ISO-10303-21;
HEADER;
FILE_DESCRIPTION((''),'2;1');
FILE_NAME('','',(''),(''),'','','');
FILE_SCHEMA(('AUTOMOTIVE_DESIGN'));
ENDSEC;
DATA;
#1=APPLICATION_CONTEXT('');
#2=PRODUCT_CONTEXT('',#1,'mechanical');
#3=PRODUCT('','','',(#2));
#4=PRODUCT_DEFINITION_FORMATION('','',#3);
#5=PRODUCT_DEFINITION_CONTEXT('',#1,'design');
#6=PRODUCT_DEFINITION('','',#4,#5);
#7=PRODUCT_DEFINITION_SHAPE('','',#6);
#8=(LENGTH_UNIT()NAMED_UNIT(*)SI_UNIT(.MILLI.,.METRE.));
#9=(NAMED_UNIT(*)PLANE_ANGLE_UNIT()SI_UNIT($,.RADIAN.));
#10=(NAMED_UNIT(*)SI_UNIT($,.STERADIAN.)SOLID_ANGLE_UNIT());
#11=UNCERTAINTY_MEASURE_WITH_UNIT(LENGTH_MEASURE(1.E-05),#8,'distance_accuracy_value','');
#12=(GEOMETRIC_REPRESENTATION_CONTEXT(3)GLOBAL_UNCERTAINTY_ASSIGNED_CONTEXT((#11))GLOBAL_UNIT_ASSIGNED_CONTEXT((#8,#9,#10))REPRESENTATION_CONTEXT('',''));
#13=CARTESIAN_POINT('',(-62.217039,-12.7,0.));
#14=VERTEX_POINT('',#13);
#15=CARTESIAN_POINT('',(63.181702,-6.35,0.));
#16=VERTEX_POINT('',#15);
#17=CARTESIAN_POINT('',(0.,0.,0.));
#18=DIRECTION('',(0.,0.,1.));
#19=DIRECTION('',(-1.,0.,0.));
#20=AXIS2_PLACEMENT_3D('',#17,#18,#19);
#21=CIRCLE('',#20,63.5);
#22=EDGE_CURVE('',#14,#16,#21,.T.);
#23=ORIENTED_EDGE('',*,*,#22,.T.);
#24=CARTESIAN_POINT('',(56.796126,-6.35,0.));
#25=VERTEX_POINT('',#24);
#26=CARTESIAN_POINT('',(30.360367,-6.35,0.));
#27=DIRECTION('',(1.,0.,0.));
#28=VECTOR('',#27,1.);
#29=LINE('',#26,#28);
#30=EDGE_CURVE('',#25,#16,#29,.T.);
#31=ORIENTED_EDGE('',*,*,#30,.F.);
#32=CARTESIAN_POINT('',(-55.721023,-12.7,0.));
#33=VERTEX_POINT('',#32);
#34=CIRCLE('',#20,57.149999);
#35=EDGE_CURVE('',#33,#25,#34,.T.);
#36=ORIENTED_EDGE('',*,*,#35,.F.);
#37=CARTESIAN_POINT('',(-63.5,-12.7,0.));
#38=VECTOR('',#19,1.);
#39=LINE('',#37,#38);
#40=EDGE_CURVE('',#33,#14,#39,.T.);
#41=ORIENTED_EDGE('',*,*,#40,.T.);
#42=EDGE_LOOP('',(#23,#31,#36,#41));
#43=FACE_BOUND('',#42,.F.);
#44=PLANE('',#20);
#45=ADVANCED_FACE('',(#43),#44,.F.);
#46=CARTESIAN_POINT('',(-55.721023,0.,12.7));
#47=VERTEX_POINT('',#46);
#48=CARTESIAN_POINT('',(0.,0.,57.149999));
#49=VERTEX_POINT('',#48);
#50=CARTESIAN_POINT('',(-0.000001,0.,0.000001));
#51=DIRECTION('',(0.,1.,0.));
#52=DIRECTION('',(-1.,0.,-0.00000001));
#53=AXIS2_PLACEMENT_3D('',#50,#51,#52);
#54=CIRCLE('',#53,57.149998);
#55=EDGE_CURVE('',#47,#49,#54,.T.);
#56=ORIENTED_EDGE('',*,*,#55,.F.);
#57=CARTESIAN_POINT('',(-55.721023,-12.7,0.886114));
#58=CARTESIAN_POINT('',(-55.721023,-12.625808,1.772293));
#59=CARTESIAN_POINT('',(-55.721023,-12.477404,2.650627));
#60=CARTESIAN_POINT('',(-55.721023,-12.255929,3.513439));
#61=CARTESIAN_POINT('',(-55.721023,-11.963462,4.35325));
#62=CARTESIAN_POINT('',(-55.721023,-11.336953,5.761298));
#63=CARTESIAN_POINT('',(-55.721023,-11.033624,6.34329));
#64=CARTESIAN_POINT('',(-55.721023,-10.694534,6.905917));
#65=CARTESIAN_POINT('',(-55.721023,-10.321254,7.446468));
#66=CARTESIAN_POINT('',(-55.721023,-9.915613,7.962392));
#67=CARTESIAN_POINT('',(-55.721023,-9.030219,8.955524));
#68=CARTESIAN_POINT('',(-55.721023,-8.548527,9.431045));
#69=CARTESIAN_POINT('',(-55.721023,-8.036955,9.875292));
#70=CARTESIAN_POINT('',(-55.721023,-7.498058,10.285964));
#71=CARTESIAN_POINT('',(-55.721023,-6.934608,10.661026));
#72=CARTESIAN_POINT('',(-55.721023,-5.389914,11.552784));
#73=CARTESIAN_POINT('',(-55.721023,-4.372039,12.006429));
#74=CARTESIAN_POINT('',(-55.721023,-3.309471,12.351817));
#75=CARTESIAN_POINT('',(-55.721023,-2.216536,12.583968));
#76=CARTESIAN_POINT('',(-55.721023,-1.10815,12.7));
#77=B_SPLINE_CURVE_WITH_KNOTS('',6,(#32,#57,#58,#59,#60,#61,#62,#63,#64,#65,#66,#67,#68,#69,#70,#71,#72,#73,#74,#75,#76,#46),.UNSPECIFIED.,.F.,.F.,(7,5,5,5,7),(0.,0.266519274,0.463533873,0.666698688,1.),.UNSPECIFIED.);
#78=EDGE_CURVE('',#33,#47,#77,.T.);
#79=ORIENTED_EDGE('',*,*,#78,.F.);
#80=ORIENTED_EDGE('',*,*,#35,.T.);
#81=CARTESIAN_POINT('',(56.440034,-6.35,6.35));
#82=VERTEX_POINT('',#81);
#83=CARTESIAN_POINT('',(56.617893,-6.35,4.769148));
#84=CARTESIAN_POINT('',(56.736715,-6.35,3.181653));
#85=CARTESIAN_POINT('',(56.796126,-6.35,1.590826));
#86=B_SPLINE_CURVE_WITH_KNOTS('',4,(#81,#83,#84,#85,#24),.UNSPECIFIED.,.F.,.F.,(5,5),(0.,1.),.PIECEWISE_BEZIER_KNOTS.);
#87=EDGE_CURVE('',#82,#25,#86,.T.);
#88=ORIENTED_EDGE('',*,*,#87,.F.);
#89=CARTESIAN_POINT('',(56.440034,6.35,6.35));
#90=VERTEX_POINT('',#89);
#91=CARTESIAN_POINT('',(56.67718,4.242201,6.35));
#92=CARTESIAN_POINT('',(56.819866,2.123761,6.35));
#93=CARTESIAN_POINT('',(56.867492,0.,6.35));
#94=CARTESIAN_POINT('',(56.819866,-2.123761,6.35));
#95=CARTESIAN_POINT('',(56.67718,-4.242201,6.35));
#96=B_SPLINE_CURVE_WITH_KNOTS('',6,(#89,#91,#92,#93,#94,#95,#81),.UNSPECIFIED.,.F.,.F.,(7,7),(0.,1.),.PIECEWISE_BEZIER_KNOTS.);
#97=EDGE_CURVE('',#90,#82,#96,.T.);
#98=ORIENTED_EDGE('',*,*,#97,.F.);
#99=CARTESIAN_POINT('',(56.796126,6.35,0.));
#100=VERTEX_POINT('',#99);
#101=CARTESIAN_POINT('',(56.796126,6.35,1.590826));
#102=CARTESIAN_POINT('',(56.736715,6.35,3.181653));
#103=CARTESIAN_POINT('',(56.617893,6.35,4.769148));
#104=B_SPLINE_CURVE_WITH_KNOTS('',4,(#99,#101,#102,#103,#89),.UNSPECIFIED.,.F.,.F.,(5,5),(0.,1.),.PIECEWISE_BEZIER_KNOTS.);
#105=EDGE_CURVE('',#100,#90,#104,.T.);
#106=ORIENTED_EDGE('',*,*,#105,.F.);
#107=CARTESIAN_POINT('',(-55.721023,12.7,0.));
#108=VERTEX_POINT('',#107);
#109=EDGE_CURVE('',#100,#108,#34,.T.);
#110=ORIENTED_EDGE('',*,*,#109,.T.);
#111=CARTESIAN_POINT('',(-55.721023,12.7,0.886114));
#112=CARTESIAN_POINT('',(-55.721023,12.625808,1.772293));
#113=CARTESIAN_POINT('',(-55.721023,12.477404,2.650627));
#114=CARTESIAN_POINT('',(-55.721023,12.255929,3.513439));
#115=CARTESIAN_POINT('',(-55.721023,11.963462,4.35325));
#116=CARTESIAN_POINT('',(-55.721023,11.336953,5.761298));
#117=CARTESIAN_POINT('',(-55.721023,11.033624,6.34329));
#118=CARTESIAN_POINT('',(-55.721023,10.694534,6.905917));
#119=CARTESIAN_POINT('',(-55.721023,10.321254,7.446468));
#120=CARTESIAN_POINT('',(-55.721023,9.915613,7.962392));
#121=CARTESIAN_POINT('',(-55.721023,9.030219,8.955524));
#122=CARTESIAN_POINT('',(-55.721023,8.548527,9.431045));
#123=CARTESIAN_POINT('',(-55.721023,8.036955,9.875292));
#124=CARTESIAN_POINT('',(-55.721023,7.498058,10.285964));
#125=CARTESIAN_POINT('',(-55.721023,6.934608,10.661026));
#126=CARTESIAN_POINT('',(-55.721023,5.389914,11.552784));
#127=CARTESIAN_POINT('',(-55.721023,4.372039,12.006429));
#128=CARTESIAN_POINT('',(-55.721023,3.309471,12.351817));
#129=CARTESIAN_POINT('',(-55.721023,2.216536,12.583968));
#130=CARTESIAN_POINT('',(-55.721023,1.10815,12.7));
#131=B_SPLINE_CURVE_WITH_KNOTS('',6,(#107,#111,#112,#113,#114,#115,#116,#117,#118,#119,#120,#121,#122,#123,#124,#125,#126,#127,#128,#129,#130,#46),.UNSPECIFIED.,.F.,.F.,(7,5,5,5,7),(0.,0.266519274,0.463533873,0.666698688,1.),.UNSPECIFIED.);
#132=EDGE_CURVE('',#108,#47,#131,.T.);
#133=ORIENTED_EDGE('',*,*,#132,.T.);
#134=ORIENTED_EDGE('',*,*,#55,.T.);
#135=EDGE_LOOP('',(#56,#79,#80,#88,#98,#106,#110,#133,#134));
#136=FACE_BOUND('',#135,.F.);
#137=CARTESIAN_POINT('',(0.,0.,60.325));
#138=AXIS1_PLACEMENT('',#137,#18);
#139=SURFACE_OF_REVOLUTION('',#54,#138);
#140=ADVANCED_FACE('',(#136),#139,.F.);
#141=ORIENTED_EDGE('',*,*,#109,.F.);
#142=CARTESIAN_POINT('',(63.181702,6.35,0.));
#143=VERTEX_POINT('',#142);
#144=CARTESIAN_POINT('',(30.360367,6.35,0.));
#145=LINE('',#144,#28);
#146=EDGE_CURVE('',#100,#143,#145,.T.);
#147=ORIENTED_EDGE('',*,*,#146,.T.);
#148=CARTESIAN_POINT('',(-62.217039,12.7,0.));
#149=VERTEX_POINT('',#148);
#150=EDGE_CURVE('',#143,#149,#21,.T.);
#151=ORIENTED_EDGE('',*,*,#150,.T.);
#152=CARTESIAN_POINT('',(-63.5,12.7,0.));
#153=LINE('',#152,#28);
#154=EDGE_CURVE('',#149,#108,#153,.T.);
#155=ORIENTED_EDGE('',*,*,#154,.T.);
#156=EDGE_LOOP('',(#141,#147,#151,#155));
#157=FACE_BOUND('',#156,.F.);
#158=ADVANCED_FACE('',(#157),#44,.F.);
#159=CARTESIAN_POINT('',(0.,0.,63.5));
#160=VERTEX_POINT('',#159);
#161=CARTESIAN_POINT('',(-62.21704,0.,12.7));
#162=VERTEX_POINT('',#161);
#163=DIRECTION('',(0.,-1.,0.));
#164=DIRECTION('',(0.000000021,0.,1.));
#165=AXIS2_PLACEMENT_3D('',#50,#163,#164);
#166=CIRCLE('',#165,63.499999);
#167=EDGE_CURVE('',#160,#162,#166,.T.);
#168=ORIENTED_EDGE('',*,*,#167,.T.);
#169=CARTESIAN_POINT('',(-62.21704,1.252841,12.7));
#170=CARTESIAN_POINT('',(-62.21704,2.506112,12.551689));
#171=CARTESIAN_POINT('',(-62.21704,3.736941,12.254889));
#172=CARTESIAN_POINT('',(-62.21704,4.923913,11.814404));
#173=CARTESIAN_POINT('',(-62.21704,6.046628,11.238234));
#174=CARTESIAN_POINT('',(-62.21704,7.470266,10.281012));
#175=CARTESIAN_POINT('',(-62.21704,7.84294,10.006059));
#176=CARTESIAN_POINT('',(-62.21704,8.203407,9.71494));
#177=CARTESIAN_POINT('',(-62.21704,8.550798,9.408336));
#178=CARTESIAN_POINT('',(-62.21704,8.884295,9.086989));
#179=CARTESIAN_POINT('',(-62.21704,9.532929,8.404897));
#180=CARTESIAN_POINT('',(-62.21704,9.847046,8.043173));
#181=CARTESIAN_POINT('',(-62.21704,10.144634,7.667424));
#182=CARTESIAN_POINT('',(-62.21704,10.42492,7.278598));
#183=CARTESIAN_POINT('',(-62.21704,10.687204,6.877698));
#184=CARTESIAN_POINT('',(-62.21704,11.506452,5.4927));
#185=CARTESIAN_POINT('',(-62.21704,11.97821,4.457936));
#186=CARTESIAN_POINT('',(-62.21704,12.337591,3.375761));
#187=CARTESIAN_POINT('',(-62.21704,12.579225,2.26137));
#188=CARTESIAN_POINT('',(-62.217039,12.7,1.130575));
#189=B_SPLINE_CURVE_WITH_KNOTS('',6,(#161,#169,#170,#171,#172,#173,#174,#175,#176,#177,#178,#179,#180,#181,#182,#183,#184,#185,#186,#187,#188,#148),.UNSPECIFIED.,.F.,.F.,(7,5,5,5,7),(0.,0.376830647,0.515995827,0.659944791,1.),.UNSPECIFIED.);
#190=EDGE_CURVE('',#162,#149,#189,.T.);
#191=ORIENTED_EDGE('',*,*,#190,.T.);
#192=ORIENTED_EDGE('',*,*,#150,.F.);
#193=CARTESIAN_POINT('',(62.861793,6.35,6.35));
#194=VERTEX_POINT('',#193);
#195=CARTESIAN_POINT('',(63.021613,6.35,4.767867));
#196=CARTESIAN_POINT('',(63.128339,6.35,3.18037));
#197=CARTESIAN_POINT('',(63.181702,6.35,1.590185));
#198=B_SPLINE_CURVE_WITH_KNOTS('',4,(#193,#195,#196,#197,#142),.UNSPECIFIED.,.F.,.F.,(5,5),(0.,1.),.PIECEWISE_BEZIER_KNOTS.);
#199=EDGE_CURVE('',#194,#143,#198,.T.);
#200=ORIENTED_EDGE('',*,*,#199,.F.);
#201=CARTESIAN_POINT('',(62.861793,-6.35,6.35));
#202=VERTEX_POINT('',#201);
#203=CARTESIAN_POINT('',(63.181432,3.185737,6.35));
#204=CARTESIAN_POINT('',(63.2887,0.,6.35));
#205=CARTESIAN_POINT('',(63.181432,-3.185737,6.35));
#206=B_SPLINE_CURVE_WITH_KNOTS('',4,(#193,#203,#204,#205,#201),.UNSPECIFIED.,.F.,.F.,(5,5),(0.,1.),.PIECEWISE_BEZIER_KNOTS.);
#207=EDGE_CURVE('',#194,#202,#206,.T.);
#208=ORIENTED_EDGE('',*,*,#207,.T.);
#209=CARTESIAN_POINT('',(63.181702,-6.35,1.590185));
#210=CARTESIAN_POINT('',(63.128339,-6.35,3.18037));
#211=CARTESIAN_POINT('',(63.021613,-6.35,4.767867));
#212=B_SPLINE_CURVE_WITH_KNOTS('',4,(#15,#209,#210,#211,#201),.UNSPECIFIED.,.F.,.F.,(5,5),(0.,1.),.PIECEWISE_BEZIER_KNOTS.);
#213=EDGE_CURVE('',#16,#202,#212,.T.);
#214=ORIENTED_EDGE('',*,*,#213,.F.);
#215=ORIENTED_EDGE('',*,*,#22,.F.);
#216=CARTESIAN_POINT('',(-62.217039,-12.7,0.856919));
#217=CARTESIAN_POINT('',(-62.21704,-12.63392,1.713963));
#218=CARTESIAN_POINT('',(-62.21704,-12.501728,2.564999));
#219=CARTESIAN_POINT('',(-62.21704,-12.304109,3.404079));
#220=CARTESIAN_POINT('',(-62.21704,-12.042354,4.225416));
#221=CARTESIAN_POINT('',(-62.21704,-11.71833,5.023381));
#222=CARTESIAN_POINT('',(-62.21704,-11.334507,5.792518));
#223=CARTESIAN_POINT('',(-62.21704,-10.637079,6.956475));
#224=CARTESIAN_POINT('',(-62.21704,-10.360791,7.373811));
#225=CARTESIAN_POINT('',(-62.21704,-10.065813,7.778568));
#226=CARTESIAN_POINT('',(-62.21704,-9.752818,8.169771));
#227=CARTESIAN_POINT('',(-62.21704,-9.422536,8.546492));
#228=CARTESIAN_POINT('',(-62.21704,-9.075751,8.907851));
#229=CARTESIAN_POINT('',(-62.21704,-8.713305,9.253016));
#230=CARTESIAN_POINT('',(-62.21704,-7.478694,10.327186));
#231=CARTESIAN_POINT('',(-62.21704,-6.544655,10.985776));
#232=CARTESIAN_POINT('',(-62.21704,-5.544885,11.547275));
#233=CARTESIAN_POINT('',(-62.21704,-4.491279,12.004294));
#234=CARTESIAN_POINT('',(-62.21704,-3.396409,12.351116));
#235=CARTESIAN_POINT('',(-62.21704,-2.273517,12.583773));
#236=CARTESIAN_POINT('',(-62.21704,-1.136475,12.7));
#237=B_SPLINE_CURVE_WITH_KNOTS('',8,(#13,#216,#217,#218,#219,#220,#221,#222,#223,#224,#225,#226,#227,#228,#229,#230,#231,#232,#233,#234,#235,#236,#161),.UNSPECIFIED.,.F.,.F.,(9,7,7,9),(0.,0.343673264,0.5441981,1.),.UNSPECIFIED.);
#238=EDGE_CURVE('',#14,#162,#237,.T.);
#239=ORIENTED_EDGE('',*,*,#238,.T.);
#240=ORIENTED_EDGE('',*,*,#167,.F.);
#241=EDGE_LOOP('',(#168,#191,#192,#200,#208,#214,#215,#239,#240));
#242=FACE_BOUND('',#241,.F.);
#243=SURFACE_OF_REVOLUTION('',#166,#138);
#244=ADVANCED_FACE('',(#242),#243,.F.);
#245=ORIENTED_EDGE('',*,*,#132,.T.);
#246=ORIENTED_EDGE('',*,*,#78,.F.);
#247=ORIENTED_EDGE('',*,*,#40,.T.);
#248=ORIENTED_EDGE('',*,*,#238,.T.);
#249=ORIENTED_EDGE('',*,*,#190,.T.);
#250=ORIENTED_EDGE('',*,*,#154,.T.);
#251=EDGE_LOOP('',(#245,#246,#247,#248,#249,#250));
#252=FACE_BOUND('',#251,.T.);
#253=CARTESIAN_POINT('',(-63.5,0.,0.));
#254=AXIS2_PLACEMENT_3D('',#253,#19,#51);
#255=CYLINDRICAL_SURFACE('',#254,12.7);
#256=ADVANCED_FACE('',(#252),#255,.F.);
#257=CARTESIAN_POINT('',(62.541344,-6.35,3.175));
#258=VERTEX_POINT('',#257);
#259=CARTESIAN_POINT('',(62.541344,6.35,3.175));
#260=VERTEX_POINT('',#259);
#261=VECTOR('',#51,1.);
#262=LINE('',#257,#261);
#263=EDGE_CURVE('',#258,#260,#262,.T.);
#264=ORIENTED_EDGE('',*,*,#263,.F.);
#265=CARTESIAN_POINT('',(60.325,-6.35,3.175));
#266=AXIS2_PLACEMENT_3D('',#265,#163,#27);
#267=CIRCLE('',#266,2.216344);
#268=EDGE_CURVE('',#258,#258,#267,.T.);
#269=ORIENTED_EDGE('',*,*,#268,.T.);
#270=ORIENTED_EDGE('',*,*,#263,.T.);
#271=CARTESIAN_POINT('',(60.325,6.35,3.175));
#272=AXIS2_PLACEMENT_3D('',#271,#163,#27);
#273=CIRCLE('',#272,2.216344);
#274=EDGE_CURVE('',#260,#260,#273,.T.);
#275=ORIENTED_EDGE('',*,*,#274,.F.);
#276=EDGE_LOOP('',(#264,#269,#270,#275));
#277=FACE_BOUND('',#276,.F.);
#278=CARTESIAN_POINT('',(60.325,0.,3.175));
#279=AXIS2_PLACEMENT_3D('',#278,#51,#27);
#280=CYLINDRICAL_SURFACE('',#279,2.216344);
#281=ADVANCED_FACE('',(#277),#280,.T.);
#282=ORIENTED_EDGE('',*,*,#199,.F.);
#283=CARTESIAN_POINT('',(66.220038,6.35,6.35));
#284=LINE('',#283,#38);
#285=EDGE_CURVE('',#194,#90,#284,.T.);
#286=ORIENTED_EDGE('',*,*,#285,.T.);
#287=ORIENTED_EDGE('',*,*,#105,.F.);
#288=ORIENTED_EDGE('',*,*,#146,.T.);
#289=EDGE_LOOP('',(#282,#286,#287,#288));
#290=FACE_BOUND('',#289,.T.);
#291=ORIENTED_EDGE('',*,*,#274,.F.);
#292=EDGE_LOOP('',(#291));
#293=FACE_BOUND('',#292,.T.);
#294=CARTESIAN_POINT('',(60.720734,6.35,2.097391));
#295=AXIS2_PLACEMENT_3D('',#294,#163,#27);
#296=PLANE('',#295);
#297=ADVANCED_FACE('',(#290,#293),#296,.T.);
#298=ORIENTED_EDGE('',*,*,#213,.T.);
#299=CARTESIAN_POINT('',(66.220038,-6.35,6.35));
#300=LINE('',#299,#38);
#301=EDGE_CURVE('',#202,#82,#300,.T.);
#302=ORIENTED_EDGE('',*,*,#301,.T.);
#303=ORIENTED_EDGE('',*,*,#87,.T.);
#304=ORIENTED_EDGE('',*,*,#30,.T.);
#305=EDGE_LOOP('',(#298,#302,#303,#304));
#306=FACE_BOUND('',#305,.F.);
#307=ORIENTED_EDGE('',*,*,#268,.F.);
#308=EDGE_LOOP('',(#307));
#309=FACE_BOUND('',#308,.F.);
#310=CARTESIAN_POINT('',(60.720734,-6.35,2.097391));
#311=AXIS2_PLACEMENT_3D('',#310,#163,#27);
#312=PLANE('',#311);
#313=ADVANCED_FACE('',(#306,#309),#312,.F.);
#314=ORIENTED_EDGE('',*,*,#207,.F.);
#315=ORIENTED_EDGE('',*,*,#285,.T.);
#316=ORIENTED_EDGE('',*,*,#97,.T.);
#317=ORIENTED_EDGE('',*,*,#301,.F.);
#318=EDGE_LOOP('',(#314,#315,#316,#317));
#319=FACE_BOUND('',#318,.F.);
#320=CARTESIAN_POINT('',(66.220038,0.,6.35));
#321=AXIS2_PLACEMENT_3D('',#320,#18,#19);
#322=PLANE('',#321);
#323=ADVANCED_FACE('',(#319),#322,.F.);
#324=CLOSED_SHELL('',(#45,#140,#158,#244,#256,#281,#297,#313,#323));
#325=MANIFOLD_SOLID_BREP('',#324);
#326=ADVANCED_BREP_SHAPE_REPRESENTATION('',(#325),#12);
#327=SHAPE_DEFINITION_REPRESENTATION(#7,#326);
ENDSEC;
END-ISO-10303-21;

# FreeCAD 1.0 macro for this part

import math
import FreeCAD as App
import Part
import Sketcher
Q = App.Units.Quantity

doc = App.newDocument("Part")
body = doc.addObject("PartDesign::Body", "Body")

# Sketch on XZ plane
sketch1 = doc.addObject("Sketcher::SketchObject", "Sketch")
body.addObject(sketch1)
sketch1.AttachmentSupport = (doc.XZ_Plane, [""])
sketch1.MapMode = "FlatFace"
sketch1.addGeometry(Part.LineSegment(App.Vector(0, 57, 0), App.Vector(0, 64, 0)), False)
sketch1.addGeometry(Part.ArcOfCircle(Part.Circle(App.Vector(0, 0, 0), App.Vector(0, 0, 1), 63), math.radians(90), math.radians(180)), False)
sketch1.addGeometry(Part.LineSegment(App.Vector(-64, 0, 0), App.Vector(-57, 0, 0)), False)
sketch1.addGeometry(Part.ArcOfCircle(Part.Circle(App.Vector(0, 0, 0), App.Vector(0, 0, 1), 57), math.radians(90), math.radians(180)), False)
sketch1.addConstraint(Sketcher.Constraint("Coincident", 0, 2, 1, 1))
sketch1.addConstraint(Sketcher.Constraint("Coincident", 1, 2, 2, 1))
sketch1.addConstraint(Sketcher.Constraint("Coincident", 2, 2, 3, 2))
sketch1.addConstraint(Sketcher.Constraint("Coincident", 3, 1, 0, 1))
sketch1.addConstraint(Sketcher.Constraint("Vertical", 0))
sketch1.addConstraint(Sketcher.Constraint("Horizontal", 2))
sketch1.addConstraint(Sketcher.Constraint("Coincident", 1, 3, -1, 1))
sketch1.addConstraint(Sketcher.Constraint("Coincident", 3, 3, -1, 1))
sketch1.addConstraint(Sketcher.Constraint("PointOnObject", 0, 2, -2))
sketch1.addConstraint(Sketcher.Constraint("PointOnObject", 1, 2, -1))
sketch1.addConstraint(Sketcher.Constraint("Radius", 1, Q("2.4999999 in")))
sketch1.addConstraint(Sketcher.Constraint("Radius", 3, Q("2.2499999 in")))
revolution = doc.addObject("PartDesign::Revolution", "Revolution")
body.addObject(revolution)
revolution.Profile = sketch1
revolution.ReferenceAxis = (sketch1, ["V_Axis"])
revolution.Angle = 360

# Sketch on XZ plane
sketch2 = doc.addObject("Sketcher::SketchObject", "Sketch001")
body.addObject(sketch2)
sketch2.AttachmentSupport = (doc.XZ_Plane, [""])
sketch2.MapMode = "FlatFace"
sketch2.addGeometry(Part.LineSegment(App.Vector(55.2, 6.3, 0), App.Vector(55.2, -2.2, 0)), False)
sketch2.addGeometry(Part.LineSegment(App.Vector(55.2, -2.2, 0), App.Vector(66.2, -2.2, 0)), False)
sketch2.addGeometry(Part.LineSegment(App.Vector(66.2, -2.2, 0), App.Vector(66.2, 6.3, 0)), False)
sketch2.addGeometry(Part.LineSegment(App.Vector(66.2, 6.3, 0), App.Vector(55.2, 6.3, 0)), False)
sketch2.addGeometry(Part.Circle(App.Vector(60.3, 3.2, 0), App.Vector(0, 0, 1), 2.2), False)
sketch2.addConstraint(Sketcher.Constraint("Coincident", 0, 2, 1, 1))
sketch2.addConstraint(Sketcher.Constraint("Coincident", 1, 2, 2, 1))
sketch2.addConstraint(Sketcher.Constraint("Coincident", 2, 2, 3, 1))
sketch2.addConstraint(Sketcher.Constraint("Coincident", 3, 2, 0, 1))
sketch2.addConstraint(Sketcher.Constraint("Vertical", 0))
sketch2.addConstraint(Sketcher.Constraint("Horizontal", 1))
sketch2.addConstraint(Sketcher.Constraint("Vertical", 2))
sketch2.addConstraint(Sketcher.Constraint("Horizontal", 3))
sketch2.addConstraint(Sketcher.Constraint("DistanceY", -1, 1, 2, 2, Q("0.25 in")))
sketch2.addConstraint(Sketcher.Constraint("DistanceX", -1, 1, 4, 3, Q("2.375 in")))
sketch2.addConstraint(Sketcher.Constraint("DistanceY", -1, 1, 4, 3, Q("0.125 in")))
sketch2.addConstraint(Sketcher.Constraint("Diameter", 4, 4.432688))
sketch2.addConstraint(Sketcher.Constraint("DistanceX", 1, 1, 1, 2, 10.998607))
sketch2.addConstraint(Sketcher.Constraint("DistanceY", 0, 2, 0, 1, 8.505218))
sketch2.addConstraint(Sketcher.Constraint("DistanceX", -1, 1, 0, 2, 55.221431))
pocket1 = doc.addObject("PartDesign::Pocket", "Pocket")
body.addObject(pocket1)
pocket1.Profile = sketch2
pocket1.Length = Q("0.5 in")
pocket1.Midplane = True

# Sketch on YZ plane
sketch3 = doc.addObject("Sketcher::SketchObject", "Sketch002")
body.addObject(sketch3)
sketch3.AttachmentSupport = (doc.YZ_Plane, [""])
sketch3.MapMode = "FlatFace"
sketch3.AttachmentOffset = App.Placement(App.Vector(0, 0, -2.5 * 25.4), App.Rotation())
sketch3.addGeometry(Part.Circle(App.Vector(0, 0, 0), App.Vector(0, 0, 1), 13), False)
sketch3.addConstraint(Sketcher.Constraint("Coincident", 0, 3, -1, 1))
sketch3.addConstraint(Sketcher.Constraint("Diameter", 0, Q("1 in")))
pocket2 = doc.addObject("PartDesign::Pocket", "Pocket001")
body.addObject(pocket2)
pocket2.Profile = sketch3
pocket2.Length = Q("1 in")
pocket2.Reversed = True

doc.recompute()
